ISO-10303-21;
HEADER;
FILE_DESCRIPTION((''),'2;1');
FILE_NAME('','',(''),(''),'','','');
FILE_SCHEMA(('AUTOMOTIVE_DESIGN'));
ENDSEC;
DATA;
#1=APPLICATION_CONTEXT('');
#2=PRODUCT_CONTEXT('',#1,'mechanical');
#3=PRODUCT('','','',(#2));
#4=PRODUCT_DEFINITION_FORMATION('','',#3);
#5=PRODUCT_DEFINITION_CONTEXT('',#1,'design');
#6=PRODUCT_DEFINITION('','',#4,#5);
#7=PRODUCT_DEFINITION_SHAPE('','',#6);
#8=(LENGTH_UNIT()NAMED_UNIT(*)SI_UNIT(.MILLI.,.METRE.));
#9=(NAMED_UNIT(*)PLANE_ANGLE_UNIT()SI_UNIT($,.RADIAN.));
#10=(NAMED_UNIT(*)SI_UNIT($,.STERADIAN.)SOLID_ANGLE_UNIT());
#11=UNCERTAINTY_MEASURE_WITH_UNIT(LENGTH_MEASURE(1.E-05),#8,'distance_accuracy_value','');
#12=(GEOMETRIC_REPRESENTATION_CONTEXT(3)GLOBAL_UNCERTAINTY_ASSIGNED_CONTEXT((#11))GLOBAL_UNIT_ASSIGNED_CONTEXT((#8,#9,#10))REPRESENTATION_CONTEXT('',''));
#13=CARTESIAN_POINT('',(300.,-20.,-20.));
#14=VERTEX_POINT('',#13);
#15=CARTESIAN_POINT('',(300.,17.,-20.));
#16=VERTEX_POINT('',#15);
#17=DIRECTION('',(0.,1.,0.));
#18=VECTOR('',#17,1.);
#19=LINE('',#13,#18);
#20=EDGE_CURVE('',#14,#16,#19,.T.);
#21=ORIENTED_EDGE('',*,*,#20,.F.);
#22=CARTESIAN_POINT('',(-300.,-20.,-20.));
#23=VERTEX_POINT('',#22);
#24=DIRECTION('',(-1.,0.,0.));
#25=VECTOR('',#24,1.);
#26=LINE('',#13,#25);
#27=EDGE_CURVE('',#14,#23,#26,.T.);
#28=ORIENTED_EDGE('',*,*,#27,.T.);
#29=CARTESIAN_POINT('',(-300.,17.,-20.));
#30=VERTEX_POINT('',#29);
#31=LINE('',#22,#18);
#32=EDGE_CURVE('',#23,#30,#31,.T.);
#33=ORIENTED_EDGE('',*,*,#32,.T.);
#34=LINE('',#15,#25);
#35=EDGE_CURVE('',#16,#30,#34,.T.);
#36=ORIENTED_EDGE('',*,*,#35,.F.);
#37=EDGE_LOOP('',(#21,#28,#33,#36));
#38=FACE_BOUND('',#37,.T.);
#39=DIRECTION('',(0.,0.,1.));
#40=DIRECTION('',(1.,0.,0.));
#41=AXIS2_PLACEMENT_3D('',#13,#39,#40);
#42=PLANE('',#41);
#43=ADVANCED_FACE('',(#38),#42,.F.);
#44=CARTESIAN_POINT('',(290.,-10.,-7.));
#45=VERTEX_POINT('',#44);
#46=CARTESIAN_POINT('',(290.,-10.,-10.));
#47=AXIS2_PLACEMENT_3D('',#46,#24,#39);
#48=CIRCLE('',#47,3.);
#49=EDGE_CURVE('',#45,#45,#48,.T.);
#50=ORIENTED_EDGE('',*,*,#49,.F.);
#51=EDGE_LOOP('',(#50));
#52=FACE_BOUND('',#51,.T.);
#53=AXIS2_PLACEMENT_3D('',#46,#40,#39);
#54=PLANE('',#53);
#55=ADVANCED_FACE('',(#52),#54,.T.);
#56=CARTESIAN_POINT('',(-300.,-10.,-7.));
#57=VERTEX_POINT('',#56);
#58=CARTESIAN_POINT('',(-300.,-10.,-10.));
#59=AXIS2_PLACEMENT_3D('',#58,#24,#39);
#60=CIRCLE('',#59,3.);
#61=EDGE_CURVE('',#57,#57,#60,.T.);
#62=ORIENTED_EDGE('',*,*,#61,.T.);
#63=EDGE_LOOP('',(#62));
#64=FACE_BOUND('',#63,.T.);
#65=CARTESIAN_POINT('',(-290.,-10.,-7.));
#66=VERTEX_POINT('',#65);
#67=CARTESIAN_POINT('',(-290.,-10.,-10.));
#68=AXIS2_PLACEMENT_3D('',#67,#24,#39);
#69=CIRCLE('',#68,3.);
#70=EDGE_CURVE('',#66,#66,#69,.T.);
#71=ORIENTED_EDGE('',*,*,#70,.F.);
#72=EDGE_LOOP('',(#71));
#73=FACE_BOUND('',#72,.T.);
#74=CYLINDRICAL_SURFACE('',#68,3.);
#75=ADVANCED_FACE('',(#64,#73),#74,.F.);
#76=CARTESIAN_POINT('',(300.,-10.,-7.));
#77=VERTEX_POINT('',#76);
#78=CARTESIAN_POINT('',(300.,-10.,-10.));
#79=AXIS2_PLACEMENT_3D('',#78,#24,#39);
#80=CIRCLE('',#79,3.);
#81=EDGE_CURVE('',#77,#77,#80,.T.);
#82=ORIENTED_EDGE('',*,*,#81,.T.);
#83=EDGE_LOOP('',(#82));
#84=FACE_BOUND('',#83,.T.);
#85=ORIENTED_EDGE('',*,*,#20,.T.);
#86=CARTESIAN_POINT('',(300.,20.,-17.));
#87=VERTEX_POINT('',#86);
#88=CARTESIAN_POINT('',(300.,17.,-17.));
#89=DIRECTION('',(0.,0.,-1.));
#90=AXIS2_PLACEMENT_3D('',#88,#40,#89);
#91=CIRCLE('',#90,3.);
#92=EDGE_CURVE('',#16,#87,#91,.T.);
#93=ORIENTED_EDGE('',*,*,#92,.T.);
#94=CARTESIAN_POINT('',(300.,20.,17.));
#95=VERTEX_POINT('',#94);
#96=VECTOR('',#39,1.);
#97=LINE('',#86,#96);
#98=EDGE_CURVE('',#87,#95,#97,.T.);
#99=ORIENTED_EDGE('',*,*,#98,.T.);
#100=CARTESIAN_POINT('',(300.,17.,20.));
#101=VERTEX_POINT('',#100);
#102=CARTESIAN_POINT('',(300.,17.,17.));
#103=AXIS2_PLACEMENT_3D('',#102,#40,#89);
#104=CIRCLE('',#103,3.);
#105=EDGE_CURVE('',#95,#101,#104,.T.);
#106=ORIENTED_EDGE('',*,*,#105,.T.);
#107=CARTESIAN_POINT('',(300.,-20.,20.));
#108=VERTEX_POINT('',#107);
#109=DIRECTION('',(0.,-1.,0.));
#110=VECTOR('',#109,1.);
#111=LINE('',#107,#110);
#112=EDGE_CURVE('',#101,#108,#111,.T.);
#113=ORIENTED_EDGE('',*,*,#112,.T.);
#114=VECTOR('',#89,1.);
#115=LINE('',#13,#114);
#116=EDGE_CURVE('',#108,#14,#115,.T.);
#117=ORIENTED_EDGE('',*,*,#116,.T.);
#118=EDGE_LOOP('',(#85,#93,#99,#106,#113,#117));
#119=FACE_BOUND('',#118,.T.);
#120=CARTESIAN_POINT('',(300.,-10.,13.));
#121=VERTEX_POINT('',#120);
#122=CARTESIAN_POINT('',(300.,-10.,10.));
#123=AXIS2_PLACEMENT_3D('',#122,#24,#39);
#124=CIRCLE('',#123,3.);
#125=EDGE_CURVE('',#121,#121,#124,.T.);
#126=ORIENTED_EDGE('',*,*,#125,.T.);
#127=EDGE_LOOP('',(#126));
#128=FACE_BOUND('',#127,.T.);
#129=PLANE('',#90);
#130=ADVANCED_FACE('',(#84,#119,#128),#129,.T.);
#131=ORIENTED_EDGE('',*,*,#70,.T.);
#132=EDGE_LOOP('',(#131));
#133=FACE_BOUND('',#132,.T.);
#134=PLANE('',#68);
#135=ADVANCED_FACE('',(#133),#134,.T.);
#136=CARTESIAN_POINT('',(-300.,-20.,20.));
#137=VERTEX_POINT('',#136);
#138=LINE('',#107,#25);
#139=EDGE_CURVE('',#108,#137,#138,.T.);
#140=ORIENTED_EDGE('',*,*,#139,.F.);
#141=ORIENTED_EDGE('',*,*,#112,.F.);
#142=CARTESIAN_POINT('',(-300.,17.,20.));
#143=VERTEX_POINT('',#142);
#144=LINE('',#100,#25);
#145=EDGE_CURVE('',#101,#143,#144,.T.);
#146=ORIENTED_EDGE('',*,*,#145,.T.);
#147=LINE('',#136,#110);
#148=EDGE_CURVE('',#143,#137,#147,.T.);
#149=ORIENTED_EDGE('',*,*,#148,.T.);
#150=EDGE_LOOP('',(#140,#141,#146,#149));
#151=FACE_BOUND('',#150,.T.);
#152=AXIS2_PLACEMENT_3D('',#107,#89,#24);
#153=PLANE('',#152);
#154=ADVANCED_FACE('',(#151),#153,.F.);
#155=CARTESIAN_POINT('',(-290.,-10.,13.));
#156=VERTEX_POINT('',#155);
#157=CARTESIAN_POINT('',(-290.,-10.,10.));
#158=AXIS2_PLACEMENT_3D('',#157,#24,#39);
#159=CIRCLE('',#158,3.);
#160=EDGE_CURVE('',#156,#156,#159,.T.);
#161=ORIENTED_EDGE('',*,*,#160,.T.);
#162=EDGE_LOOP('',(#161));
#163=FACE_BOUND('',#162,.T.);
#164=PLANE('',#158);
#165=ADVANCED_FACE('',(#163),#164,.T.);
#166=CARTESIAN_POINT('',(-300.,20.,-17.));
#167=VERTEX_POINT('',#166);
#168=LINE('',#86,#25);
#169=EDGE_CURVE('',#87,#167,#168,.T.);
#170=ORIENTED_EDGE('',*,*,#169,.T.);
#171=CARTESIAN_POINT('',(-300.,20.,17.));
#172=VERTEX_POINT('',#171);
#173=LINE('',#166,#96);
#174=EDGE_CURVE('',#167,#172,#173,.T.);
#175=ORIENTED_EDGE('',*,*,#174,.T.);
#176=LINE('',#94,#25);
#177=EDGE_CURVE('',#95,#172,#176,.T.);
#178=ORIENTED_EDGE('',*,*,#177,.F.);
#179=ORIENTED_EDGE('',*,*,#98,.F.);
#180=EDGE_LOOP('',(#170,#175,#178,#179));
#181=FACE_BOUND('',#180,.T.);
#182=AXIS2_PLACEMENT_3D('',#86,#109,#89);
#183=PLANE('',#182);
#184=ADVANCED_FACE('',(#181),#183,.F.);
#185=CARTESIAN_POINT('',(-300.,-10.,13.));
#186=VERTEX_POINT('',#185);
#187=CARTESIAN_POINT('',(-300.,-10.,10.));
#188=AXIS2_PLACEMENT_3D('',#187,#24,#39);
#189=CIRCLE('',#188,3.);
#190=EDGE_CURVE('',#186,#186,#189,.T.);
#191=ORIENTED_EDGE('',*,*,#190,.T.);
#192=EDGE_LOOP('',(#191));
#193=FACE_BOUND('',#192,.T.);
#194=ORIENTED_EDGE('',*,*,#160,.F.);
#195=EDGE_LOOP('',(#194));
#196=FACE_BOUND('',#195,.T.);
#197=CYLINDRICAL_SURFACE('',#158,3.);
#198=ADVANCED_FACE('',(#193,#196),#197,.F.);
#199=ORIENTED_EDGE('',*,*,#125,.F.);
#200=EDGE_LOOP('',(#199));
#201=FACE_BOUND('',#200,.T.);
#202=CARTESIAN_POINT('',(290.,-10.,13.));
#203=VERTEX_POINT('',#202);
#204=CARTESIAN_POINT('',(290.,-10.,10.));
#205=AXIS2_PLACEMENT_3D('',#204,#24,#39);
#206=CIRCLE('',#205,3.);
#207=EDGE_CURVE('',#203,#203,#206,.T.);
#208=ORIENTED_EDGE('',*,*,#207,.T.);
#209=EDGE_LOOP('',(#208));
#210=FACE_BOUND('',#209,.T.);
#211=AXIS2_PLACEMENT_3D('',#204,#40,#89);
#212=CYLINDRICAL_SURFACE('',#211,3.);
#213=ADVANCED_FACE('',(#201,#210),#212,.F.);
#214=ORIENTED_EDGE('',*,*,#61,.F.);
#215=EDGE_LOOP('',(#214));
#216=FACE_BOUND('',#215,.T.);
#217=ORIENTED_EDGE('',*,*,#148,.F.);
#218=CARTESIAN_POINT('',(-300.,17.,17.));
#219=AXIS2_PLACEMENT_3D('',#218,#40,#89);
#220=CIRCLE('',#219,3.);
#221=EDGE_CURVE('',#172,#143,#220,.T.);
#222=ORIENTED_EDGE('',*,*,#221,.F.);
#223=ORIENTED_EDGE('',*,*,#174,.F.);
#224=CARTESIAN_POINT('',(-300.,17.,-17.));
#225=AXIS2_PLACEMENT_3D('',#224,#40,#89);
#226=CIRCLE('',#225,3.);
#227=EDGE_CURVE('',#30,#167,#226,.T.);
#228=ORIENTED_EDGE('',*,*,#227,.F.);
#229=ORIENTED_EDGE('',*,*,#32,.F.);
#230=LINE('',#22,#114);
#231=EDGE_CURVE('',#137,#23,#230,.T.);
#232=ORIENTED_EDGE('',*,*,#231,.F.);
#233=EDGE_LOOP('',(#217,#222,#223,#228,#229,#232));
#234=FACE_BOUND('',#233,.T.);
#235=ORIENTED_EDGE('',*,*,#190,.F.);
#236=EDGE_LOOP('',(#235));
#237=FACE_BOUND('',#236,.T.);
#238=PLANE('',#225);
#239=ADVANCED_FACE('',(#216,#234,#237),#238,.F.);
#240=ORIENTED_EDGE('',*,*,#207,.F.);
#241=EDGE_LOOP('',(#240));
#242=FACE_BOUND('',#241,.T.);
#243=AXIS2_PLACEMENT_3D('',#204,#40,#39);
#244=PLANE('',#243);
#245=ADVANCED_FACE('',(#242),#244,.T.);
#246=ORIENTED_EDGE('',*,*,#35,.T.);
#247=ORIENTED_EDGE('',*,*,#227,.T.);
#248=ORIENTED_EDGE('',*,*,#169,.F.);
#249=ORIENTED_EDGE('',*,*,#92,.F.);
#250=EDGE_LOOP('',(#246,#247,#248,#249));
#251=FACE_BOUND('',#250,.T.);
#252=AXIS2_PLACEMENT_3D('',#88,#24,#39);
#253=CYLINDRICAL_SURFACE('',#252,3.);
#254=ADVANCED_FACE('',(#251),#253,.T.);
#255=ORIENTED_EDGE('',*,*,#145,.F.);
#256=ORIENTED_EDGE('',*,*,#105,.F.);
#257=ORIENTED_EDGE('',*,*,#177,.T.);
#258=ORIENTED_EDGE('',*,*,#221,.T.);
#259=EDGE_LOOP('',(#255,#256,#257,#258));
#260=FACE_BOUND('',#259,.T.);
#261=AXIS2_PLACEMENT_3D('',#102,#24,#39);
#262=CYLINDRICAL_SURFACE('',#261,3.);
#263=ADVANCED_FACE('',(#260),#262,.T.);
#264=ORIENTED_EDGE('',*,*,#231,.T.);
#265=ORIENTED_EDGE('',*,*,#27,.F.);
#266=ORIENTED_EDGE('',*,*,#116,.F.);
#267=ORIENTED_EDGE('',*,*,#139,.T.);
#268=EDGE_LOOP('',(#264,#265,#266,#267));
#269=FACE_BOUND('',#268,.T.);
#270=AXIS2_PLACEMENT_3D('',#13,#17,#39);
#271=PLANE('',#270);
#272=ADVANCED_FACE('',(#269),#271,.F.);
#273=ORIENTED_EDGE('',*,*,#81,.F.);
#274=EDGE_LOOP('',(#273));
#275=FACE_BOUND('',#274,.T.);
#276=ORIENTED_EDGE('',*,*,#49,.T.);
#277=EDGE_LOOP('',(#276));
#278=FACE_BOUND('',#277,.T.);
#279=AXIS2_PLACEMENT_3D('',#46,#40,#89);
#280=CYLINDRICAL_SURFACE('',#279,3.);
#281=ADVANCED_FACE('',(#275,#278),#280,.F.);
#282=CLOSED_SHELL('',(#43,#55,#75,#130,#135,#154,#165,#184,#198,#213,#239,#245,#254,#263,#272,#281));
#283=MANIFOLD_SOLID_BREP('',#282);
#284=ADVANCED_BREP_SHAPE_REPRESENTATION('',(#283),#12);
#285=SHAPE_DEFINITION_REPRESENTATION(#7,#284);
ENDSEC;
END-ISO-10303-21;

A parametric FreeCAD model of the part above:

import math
import FreeCAD as App
import Part
import Sketcher

V = App.Vector

doc = App.newDocument("Part")
body = doc.addObject("PartDesign::Body", "Body")

# Sketch on YZ plane
sketch1 = body.newObject("Sketcher::SketchObject", "Sketch")
sketch1.AttachmentSupport = (doc.getObject("YZ_Plane"), [""])
sketch1.MapMode = "FlatFace"
sketch1.addGeometry(Part.LineSegment(V(-20, 20, 0), V(-20, -20, 0)), False)
sketch1.addGeometry(Part.LineSegment(V(-20, -20, 0), V(17, -20, 0)), False)
sketch1.addGeometry(Part.ArcOfCircle(Part.Circle(V(17, -17, 0), V(0, 0, 1), 3), math.radians(-90), math.radians(0)), False)
sketch1.addGeometry(Part.LineSegment(V(20, -17, 0), V(20, 17, 0)), False)
sketch1.addGeometry(Part.ArcOfCircle(Part.Circle(V(17, 17, 0), V(0, 0, 1), 3), math.radians(0), math.radians(90)), False)
sketch1.addGeometry(Part.LineSegment(V(17, 20, 0), V(-20, 20, 0)), False)
sketch1.addConstraint(Sketcher.Constraint("Coincident", 0, 2, 1, 1))
sketch1.addConstraint(Sketcher.Constraint("Tangent", 1, 2, 2, 1))
sketch1.addConstraint(Sketcher.Constraint("Tangent", 2, 2, 3, 1))
sketch1.addConstraint(Sketcher.Constraint("Tangent", 3, 2, 4, 1))
sketch1.addConstraint(Sketcher.Constraint("Tangent", 4, 2, 5, 1))
sketch1.addConstraint(Sketcher.Constraint("Coincident", 5, 2, 0, 1))
sketch1.addConstraint(Sketcher.Constraint("Vertical", 0))
sketch1.addConstraint(Sketcher.Constraint("Horizontal", 1))
sketch1.addConstraint(Sketcher.Constraint("Vertical", 3))
sketch1.addConstraint(Sketcher.Constraint("Horizontal", 5))
sketch1.addConstraint(Sketcher.Constraint("Equal", 2, 4))
sketch1.addConstraint(Sketcher.Constraint("Radius", 2, 3.0))
sketch1.addConstraint(Sketcher.Constraint("DistanceX", 1, 1, 1, 2, 37.0))
sketch1.addConstraint(Sketcher.Constraint("DistanceY", 0, 2, 0, 1, 40.0))
sketch1.addConstraint(Sketcher.Constraint("DistanceX", -1, 1, 2, 3, 17.0))
sketch1.addConstraint(Sketcher.Constraint("DistanceY", 2, 3, -1, 1, 17.0))
pad1 = body.newObject("PartDesign::Pad", "Pad")
pad1.Profile = sketch1
pad1.Length = 600
pad1.Midplane = True

# Sketch on YZ plane
sketch2 = body.newObject("Sketcher::SketchObject", "Sketch001")
sketch2.AttachmentSupport = (doc.getObject("YZ_Plane"), [""])
sketch2.MapMode = "FlatFace"
sketch2.AttachmentOffset = App.Placement(V(0, 0, -300), App.Rotation())
sketch2.addGeometry(Part.Circle(V(-10, -10, 0), V(0, 0, 1), 3), False)
sketch2.addGeometry(Part.Circle(V(-10, 10, 0), V(0, 0, 1), 3), False)
sketch2.addConstraint(Sketcher.Constraint("Equal", 0, 1))
sketch2.addConstraint(Sketcher.Constraint("Symmetric", 0, 3, 1, 3, -1))
sketch2.addConstraint(Sketcher.Constraint("Diameter", 0, 6.0))
sketch2.addConstraint(Sketcher.Constraint("DistanceX", 0, 3, -1, 1, 10.0))
sketch2.addConstraint(Sketcher.Constraint("DistanceY", 0, 3, -1, 1, 10.0))
pocket1 = body.newObject("PartDesign::Pocket", "Pocket")
pocket1.Profile = sketch2
pocket1.Length = 10
pocket1.Reversed = True
doc.recompute()

mirrored = body.newObject("PartDesign::Mirrored", "Mirrored")
mirrored.Originals = [pocket1]
mirrored.MirrorPlane = (doc.getObject("YZ_Plane"), [""])
body.Tip = mirrored

doc.recompute()
